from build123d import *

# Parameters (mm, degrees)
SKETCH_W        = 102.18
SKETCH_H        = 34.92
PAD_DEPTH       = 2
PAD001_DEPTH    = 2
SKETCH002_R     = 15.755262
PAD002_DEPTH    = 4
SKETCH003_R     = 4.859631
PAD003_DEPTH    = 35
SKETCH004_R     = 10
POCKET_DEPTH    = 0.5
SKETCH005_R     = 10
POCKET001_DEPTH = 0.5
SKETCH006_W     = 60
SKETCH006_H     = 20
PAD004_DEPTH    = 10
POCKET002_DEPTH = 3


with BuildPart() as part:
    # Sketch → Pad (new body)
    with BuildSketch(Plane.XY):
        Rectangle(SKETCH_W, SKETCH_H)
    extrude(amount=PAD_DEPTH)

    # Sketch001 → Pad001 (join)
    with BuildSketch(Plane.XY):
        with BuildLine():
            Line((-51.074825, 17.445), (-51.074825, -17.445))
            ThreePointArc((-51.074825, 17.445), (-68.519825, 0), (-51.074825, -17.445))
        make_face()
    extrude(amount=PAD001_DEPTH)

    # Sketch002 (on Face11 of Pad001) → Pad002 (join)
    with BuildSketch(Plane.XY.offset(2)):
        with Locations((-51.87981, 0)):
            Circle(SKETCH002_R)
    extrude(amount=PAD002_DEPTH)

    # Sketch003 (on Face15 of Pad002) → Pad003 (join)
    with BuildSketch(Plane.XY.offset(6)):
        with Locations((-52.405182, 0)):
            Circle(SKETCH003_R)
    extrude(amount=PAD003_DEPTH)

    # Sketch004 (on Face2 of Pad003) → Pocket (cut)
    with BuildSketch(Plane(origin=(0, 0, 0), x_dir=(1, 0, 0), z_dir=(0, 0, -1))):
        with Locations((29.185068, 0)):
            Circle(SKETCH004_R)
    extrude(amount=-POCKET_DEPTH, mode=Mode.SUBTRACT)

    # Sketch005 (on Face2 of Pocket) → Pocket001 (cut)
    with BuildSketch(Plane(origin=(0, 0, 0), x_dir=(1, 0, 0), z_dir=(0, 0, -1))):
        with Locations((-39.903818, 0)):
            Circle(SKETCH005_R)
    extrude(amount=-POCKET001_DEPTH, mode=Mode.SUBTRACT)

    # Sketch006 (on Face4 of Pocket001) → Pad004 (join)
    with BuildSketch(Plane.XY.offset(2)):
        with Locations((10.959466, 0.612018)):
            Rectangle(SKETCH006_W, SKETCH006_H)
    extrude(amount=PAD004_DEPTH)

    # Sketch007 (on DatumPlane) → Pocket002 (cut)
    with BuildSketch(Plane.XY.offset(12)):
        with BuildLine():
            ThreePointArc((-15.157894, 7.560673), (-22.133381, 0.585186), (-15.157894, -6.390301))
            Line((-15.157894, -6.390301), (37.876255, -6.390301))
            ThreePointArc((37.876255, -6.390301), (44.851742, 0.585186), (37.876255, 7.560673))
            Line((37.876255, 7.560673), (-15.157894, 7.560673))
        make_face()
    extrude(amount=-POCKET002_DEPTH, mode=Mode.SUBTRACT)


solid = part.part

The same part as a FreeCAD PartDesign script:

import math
import FreeCAD as App
import Part
import Sketcher

V = App.Vector


def add_polygon(sketch, points):
    """Adds a closed chain of lines whose ends are joined by coincident constraints."""
    first, n = sketch.GeometryCount, len(points)
    for a, b in zip(points, points[1:] + points[:1]):
        sketch.addGeometry(Part.LineSegment(App.Vector(*a, 0), App.Vector(*b, 0)), False)
    for i in range(n):
        sketch.addConstraint(Sketcher.Constraint("Coincident", first + i, 2, first + (i + 1) % n, 1))

doc = App.newDocument("Part")
params = doc.addObject("Spreadsheet::Sheet", "Params")
for row, (alias, value) in enumerate([
    ("sketch1_width", "102.18 mm"),
    ("sketch1_height", "34.92 mm"),
    ("pad1_length", "2 mm"),
    ("pad2_length", "2 mm"),
    ("pad3_length", "4 mm"),
    ("pad4_length", "35 mm"),
    ("sketch5_diameter", "20 mm"),
    ("pocket1_length", "0.5 mm"),
    ("sketch6_diameter", "20 mm"),
    ("pocket2_length", "0.5 mm"),
    ("sketch7_width", "60 mm"),
    ("sketch7_height", "20 mm"),
    ("pad5_length", "10 mm"),
    ("pocket3_length", "3 mm"),
], start=1):
    params.set(f"A{row}", alias)
    params.set(f"B{row}", "=" + value)
    params.setAlias(f"B{row}", alias)

body = doc.addObject("PartDesign::Body", "Body")

# Sketch on XY plane
sketch1 = body.newObject("Sketcher::SketchObject", "Sketch")
sketch1.AttachmentSupport = (doc.getObject("XY_Plane"), [""])
sketch1.MapMode = "FlatFace"
add_polygon(sketch1, [(-51, 17), (-51, -17), (51, -17), (51, 17)])  # lines 0-3
sketch1.addConstraint(Sketcher.Constraint("Vertical", 0))
sketch1.addConstraint(Sketcher.Constraint("Horizontal", 1))
sketch1.addConstraint(Sketcher.Constraint("Vertical", 2))
sketch1.addConstraint(Sketcher.Constraint("Horizontal", 3))
sketch1.addConstraint(Sketcher.Constraint("Symmetric", 0, 2, 2, 2, -1, 1))
sketch1.addConstraint(Sketcher.Constraint("DistanceX", 1, 1, 1, 2, 102.18))
sketch1.addConstraint(Sketcher.Constraint("DistanceY", 0, 2, 0, 1, 34.92))
sketch1.setExpression("Constraints[9]", "Params.sketch1_width")
sketch1.setExpression("Constraints[10]", "Params.sketch1_height")
pad1 = body.newObject("PartDesign::Pad", "Pad")
pad1.Profile = sketch1
pad1.setExpression("Length", "Params.pad1_length")

# Sketch on XY plane
sketch2 = body.newObject("Sketcher::SketchObject", "Sketch001")
sketch2.AttachmentSupport = (doc.getObject("XY_Plane"), [""])
sketch2.MapMode = "FlatFace"
sketch2.addGeometry(Part.LineSegment(V(-51, -17, 0), V(-51, 17, 0)), False)
sketch2.addGeometry(Part.ArcOfCircle(Part.Circle(V(-51, 0, 0), V(0, 0, 1), 17), math.radians(90), math.radians(270)), False)
sketch2.addConstraint(Sketcher.Constraint("Coincident", 0, 1, 1, 2))
sketch2.addConstraint(Sketcher.Constraint("Coincident", 1, 1, 0, 2))
sketch2.addConstraint(Sketcher.Constraint("Vertical", 0))
sketch2.addConstraint(Sketcher.Constraint("PointOnObject", 1, 3, -1))
sketch2.addConstraint(Sketcher.Constraint("Vertical", 1, 3, 0, 1))
sketch2.addConstraint(Sketcher.Constraint("Radius", 1, 17.445))
sketch2.addConstraint(Sketcher.Constraint("DistanceX", 1, 3, -1, 1, 51.074825))
pad2 = body.newObject("PartDesign::Pad", "Pad001")
pad2.Profile = sketch2
pad2.setExpression("Length", "Params.pad2_length")

# Sketch on XY plane
sketch3 = body.newObject("Sketcher::SketchObject", "Sketch002")
sketch3.AttachmentSupport = (doc.getObject("XY_Plane"), [""])
sketch3.MapMode = "FlatFace"
sketch3.AttachmentOffset = App.Placement(V(0, 0, 2), App.Rotation())
sketch3.addGeometry(Part.Circle(V(-52, 0, 0), V(0, 0, 1), 16), False)
sketch3.addConstraint(Sketcher.Constraint("PointOnObject", 0, 3, -1))
sketch3.addConstraint(Sketcher.Constraint("Diameter", 0, 31.510524))
sketch3.addConstraint(Sketcher.Constraint("DistanceX", 0, 3, -1, 1, 51.87981))
pad3 = body.newObject("PartDesign::Pad", "Pad002")
pad3.Profile = sketch3
pad3.setExpression("Length", "Params.pad3_length")

# Sketch on XY plane
sketch4 = body.newObject("Sketcher::SketchObject", "Sketch003")
sketch4.AttachmentSupport = (doc.getObject("XY_Plane"), [""])
sketch4.MapMode = "FlatFace"
sketch4.AttachmentOffset = App.Placement(V(0, 0, 6), App.Rotation())
sketch4.addGeometry(Part.Circle(V(-52.4, 0, 0), V(0, 0, 1), 4.9), False)
sketch4.addConstraint(Sketcher.Constraint("PointOnObject", 0, 3, -1))
sketch4.addConstraint(Sketcher.Constraint("Diameter", 0, 9.719262))
sketch4.addConstraint(Sketcher.Constraint("DistanceX", 0, 3, -1, 1, 52.405182))
pad4 = body.newObject("PartDesign::Pad", "Pad003")
pad4.Profile = sketch4
pad4.setExpression("Length", "Params.pad4_length")

# Sketch on XY plane
sketch5 = body.newObject("Sketcher::SketchObject", "Sketch004")
sketch5.AttachmentSupport = (doc.getObject("XY_Plane"), [""])
sketch5.MapMode = "FlatFace"
sketch5.addGeometry(Part.Circle(V(29, 0, 0), V(0, 0, 1), 10), False)
sketch5.addConstraint(Sketcher.Constraint("PointOnObject", 0, 3, -1))
sketch5.addConstraint(Sketcher.Constraint("Diameter", 0, 20.0))
sketch5.addConstraint(Sketcher.Constraint("DistanceX", -1, 1, 0, 3, 29.185068))
sketch5.setExpression("Constraints[1]", "Params.sketch5_diameter")
pocket1 = body.newObject("PartDesign::Pocket", "Pocket")
pocket1.Profile = sketch5
pocket1.setExpression("Length", "Params.pocket1_length")
pocket1.Reversed = True

# Sketch on XY plane
sketch6 = body.newObject("Sketcher::SketchObject", "Sketch005")
sketch6.AttachmentSupport = (doc.getObject("XY_Plane"), [""])
sketch6.MapMode = "FlatFace"
sketch6.addGeometry(Part.Circle(V(-40, 0, 0), V(0, 0, 1), 10), False)
sketch6.addConstraint(Sketcher.Constraint("PointOnObject", 0, 3, -1))
sketch6.addConstraint(Sketcher.Constraint("Diameter", 0, 20.0))
sketch6.addConstraint(Sketcher.Constraint("DistanceX", 0, 3, -1, 1, 39.903818))
sketch6.setExpression("Constraints[1]", "Params.sketch6_diameter")
pocket2 = body.newObject("PartDesign::Pocket", "Pocket001")
pocket2.Profile = sketch6
pocket2.setExpression("Length", "Params.pocket2_length")
pocket2.Reversed = True

# Sketch on XY plane
sketch7 = body.newObject("Sketcher::SketchObject", "Sketch006")
sketch7.AttachmentSupport = (doc.getObject("XY_Plane"), [""])
sketch7.MapMode = "FlatFace"
sketch7.AttachmentOffset = App.Placement(V(0, 0, 2), App.Rotation())
add_polygon(sketch7, [(-19, 11), (-19, -9), (41, -9), (41, 11)])  # lines 0-3
sketch7.addConstraint(Sketcher.Constraint("Vertical", 0))
sketch7.addConstraint(Sketcher.Constraint("Horizontal", 1))
sketch7.addConstraint(Sketcher.Constraint("Vertical", 2))
sketch7.addConstraint(Sketcher.Constraint("Horizontal", 3))
sketch7.addConstraint(Sketcher.Constraint("DistanceX", 1, 1, 1, 2, 60.0))
sketch7.addConstraint(Sketcher.Constraint("DistanceY", 0, 2, 0, 1, 20.0))
sketch7.addConstraint(Sketcher.Constraint("DistanceY", 0, 2, -1, 1, 9.387982))
sketch7.addConstraint(Sketcher.Constraint("DistanceX", 0, 2, -1, 1, 19.040534))
sketch7.setExpression("Constraints[8]", "Params.sketch7_width")
sketch7.setExpression("Constraints[9]", "Params.sketch7_height")
pad5 = body.newObject("PartDesign::Pad", "Pad004")
pad5.Profile = sketch7
pad5.setExpression("Length", "Params.pad5_length")

# Sketch on XY plane
sketch8 = body.newObject("Sketcher::SketchObject", "Sketch007")
sketch8.AttachmentSupport = (doc.getObject("XY_Plane"), [""])
sketch8.MapMode = "FlatFace"
sketch8.AttachmentOffset = App.Placement(V(0, 0, 12), App.Rotation())
sketch8.addGeometry(Part.ArcOfCircle(Part.Circle(V(-15, 1, 0), V(0, 0, 1), 7), math.radians(90), math.radians(270)), False)
sketch8.addGeometry(Part.LineSegment(V(-15, -6, 0), V(38, -6, 0)), False)
sketch8.addGeometry(Part.ArcOfCircle(Part.Circle(V(38, 1, 0), V(0, 0, 1), 7), math.radians(-90), math.radians(90)), False)
sketch8.addGeometry(Part.LineSegment(V(38, 8, 0), V(-15, 8, 0)), False)
sketch8.addConstraint(Sketcher.Constraint("Tangent", 0, 2, 1, 1))
sketch8.addConstraint(Sketcher.Constraint("Tangent", 1, 2, 2, 1))
sketch8.addConstraint(Sketcher.Constraint("Tangent", 2, 2, 3, 1))
sketch8.addConstraint(Sketcher.Constraint("Tangent", 3, 2, 0, 1))
sketch8.addConstraint(Sketcher.Constraint("Horizontal", 1))
sketch8.addConstraint(Sketcher.Constraint("Horizontal", 3))
sketch8.addConstraint(Sketcher.Constraint("Radius", 0, 6.975487))
sketch8.addConstraint(Sketcher.Constraint("DistanceX", 1, 1, 1, 2, 53.034149))
sketch8.addConstraint(Sketcher.Constraint("DistanceY", 0, 2, -1, 1, 6.390301))
sketch8.addConstraint(Sketcher.Constraint("DistanceX", 0, 3, -1, 1, 15.157894))
pocket3 = body.newObject("PartDesign::Pocket", "Pocket002")
pocket3.Profile = sketch8
pocket3.setExpression("Length", "Params.pocket3_length")

doc.recompute()
